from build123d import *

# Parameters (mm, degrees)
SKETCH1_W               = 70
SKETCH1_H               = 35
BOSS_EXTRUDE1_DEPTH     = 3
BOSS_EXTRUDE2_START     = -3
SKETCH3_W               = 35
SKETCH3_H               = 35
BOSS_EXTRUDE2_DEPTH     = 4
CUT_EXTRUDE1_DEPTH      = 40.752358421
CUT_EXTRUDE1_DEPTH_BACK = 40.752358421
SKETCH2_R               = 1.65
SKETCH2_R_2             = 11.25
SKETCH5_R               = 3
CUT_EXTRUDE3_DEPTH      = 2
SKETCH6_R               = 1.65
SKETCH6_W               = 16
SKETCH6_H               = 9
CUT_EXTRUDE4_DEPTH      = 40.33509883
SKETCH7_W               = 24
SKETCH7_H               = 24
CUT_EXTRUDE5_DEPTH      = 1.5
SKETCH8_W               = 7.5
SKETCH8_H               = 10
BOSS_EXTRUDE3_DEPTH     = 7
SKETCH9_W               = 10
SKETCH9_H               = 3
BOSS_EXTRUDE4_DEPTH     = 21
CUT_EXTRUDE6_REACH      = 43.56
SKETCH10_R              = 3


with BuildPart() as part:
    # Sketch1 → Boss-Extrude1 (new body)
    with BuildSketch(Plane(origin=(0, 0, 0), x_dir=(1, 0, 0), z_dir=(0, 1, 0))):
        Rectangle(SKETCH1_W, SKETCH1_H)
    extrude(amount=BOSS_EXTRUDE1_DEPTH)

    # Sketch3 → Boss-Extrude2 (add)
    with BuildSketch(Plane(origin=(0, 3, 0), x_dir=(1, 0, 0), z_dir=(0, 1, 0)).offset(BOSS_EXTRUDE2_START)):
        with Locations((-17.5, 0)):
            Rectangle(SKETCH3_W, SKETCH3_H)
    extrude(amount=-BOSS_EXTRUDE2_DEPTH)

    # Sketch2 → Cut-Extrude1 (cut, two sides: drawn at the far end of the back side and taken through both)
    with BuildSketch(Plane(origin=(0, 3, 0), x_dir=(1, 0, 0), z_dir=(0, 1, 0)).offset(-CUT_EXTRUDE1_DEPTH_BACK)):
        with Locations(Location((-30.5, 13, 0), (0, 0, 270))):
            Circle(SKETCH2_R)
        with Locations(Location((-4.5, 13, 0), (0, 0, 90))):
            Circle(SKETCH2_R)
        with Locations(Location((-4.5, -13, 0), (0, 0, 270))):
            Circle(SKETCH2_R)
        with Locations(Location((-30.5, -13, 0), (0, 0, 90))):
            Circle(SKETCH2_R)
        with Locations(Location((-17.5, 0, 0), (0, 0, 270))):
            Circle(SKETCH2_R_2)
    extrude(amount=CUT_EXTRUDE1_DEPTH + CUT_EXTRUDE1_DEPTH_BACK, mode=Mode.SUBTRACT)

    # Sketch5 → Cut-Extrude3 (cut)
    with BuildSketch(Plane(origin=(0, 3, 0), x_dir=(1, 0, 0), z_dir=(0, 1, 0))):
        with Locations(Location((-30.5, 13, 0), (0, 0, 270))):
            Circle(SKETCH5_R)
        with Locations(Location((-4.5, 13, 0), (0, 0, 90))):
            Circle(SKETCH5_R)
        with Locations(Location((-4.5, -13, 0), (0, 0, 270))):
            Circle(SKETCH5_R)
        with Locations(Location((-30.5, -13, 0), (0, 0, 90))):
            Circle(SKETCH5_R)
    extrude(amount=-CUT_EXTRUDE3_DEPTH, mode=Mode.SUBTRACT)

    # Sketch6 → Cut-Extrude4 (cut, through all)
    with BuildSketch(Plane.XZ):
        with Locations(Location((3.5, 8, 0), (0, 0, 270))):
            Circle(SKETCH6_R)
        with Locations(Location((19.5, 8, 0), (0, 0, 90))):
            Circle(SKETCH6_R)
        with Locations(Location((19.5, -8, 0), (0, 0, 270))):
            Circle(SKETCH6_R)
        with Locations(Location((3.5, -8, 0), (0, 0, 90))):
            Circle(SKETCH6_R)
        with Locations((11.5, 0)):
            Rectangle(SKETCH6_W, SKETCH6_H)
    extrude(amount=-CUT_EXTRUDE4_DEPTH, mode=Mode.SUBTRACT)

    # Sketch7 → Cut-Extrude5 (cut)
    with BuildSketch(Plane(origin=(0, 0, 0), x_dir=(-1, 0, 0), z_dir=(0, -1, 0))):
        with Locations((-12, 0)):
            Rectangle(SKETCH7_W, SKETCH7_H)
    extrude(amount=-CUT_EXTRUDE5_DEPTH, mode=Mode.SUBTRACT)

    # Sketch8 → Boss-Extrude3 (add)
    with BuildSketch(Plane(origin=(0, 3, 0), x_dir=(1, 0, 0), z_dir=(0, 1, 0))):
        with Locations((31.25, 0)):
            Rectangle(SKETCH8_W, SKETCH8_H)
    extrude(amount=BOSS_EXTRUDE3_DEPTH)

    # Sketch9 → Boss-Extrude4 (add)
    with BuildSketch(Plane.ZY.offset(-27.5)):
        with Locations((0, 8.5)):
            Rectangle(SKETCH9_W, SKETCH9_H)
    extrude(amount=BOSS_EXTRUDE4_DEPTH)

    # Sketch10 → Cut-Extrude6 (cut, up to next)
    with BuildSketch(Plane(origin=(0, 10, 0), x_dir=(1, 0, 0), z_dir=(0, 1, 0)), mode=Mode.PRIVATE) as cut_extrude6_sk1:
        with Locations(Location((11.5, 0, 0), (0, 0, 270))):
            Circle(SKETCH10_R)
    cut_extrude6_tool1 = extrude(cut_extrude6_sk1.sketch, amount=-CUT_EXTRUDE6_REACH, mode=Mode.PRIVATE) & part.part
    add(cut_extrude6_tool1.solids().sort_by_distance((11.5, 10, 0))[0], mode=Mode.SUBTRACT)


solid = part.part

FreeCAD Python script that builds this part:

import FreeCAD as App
import Part
import Sketcher

V = App.Vector


def add_polygon(sketch, points):
    """Adds a closed chain of lines whose ends are joined by coincident constraints."""
    first, n = sketch.GeometryCount, len(points)
    for a, b in zip(points, points[1:] + points[:1]):
        sketch.addGeometry(Part.LineSegment(App.Vector(*a, 0), App.Vector(*b, 0)), False)
    for i in range(n):
        sketch.addConstraint(Sketcher.Constraint("Coincident", first + i, 2, first + (i + 1) % n, 1))

doc = App.newDocument("Part")
body = doc.addObject("PartDesign::Body", "Body")

sketch1 = body.newObject("Sketcher::SketchObject", "Sketch")
sketch1.AttachmentSupport = (doc.getObject("XZ_Plane"), [""])
sketch1.MapMode = "FlatFace"
add_polygon(sketch1, [(-35, -18), (-35, 18), (35, 18), (35, -18)])
sketch1.addConstraint([
    Sketcher.Constraint("Vertical", 0),
    Sketcher.Constraint("Horizontal", 1),
    Sketcher.Constraint("Vertical", 2),
    Sketcher.Constraint("Horizontal", 3),
    Sketcher.Constraint("Symmetric", 0, 2, 2, 2, -1, 1),
    Sketcher.Constraint("DistanceX", 1, 1, 1, 2, 70.0),
    Sketcher.Constraint("DistanceY", 0, 1, 0, 2, 35.0),
])
pad1 = body.newObject("PartDesign::Pad", "Pad")
pad1.Profile = sketch1
pad1.Length = 3
pad1.Reversed = True

sketch2 = body.newObject("Sketcher::SketchObject", "Sketch001")
sketch2.AttachmentSupport = (doc.getObject("XZ_Plane"), [""])
sketch2.MapMode = "FlatFace"
add_polygon(sketch2, [(-35, -18), (-35, 18), (0, 18), (0, -18)])
sketch2.addConstraint([
    Sketcher.Constraint("Vertical", 0),
    Sketcher.Constraint("Horizontal", 1),
    Sketcher.Constraint("Vertical", 2),
    Sketcher.Constraint("Horizontal", 3),
    Sketcher.Constraint("Symmetric", 1, 2, 2, 2, -1, 1),
    Sketcher.Constraint("Equal", 3, 0),
    Sketcher.Constraint("DistanceX", 1, 1, 1, 2, 35.0),
])
pad2 = body.newObject("PartDesign::Pad", "Pad001")
pad2.Profile = sketch2
pad2.Length = 4

sketch3 = body.newObject("Sketcher::SketchObject", "Sketch002")
sketch3.AttachmentSupport = (doc.getObject("XZ_Plane"), [""])
sketch3.MapMode = "FlatFace"
sketch3.AttachmentOffset = App.Placement(V(0, 0, -3), App.Rotation())
sketch3.addGeometry([
    Part.Circle(V(-30.5, -13, 0), V(0, 0, 1), 1.6),
    Part.Circle(V(-4.5, -13, 0), V(0, 0, 1), 1.6),
    Part.Circle(V(-4.5, 13, 0), V(0, 0, 1), 1.6),
    Part.Circle(V(-30.5, 13, 0), V(0, 0, 1), 1.6),
    Part.Circle(V(-17.5, 0, 0), V(0, 0, 1), 11.2),
], False)
sketch3.addConstraint([
    Sketcher.Constraint("Equal", 0, 1),
    Sketcher.Constraint("Equal", 1, 2),
    Sketcher.Constraint("Equal", 2, 3),
    Sketcher.Constraint("Symmetric", 1, 3, 2, 3, -1),
    Sketcher.Constraint("Symmetric", 0, 3, 3, 3, -1),
    Sketcher.Constraint("PointOnObject", 4, 3, -1),
    Sketcher.Constraint("Horizontal", 0, 3, 1, 3),
    Sketcher.Constraint("Diameter", 0, 3.3),
    Sketcher.Constraint("Diameter", 4, 22.5),
    Sketcher.Constraint("DistanceY", 0, 3, -1, 1, 13.0),
    Sketcher.Constraint("DistanceX", 0, 3, 1, 3, 26.0),
    Sketcher.Constraint("DistanceX", 0, 3, 4, 3, 13.0),
    Sketcher.Constraint("DistanceX", 0, 3, -1, 1, 30.5),
])
pocket1 = body.newObject("PartDesign::Pocket", "Pocket")
pocket1.Profile = sketch3
pocket1.Type = "ThroughAll"
pocket1.Midplane = True

sketch4 = body.newObject("Sketcher::SketchObject", "Sketch003")
sketch4.AttachmentSupport = (doc.getObject("XZ_Plane"), [""])
sketch4.MapMode = "FlatFace"
sketch4.AttachmentOffset = App.Placement(V(0, 0, -3), App.Rotation())
sketch4.addGeometry([
    Part.Circle(V(-30.5, -13, 0), V(0, 0, 1), 3),
    Part.Circle(V(-4.5, -13, 0), V(0, 0, 1), 3),
    Part.Circle(V(-4.5, 13, 0), V(0, 0, 1), 3),
    Part.Circle(V(-30.5, 13, 0), V(0, 0, 1), 3),
], False)
sketch4.addConstraint([
    Sketcher.Constraint("Equal", 0, 1),
    Sketcher.Constraint("Equal", 1, 2),
    Sketcher.Constraint("Equal", 2, 3),
    Sketcher.Constraint("Symmetric", 1, 3, 2, 3, -1),
    Sketcher.Constraint("Symmetric", 0, 3, 3, 3, -1),
    Sketcher.Constraint("Horizontal", 0, 3, 1, 3),
    Sketcher.Constraint("Diameter", 0, 6.0),
    Sketcher.Constraint("DistanceY", 0, 3, -1, 1, 13.0),
    Sketcher.Constraint("DistanceX", 0, 3, 1, 3, 26.0),
    Sketcher.Constraint("DistanceX", 0, 3, -1, 1, 30.5),
])
pocket2 = body.newObject("PartDesign::Pocket", "Pocket001")
pocket2.Profile = sketch4
pocket2.Length = 2
pocket2.Reversed = True

sketch5 = body.newObject("Sketcher::SketchObject", "Sketch004")
sketch5.AttachmentSupport = (doc.getObject("XZ_Plane"), [""])
sketch5.MapMode = "FlatFace"
sketch5.addGeometry(Part.Circle(V(3.5, 8, 0), V(0, 0, 1), 1.6), False)
sketch5.addGeometry(Part.Circle(V(19.5, 8, 0), V(0, 0, 1), 1.6), False)
sketch5.addGeometry(Part.Circle(V(19.5, -8, 0), V(0, 0, 1), 1.6), False)
sketch5.addGeometry(Part.Circle(V(3.5, -8, 0), V(0, 0, 1), 1.6), False)
add_polygon(sketch5, [(3.5, 4.5), (3.5, -4.5), (19.5, -4.5), (19.5, 4.5)])
sketch5.addConstraint([
    Sketcher.Constraint("Vertical", 4),
    Sketcher.Constraint("Horizontal", 5),
    Sketcher.Constraint("Vertical", 6),
    Sketcher.Constraint("Horizontal", 7),
    Sketcher.Constraint("Equal", 0, 1),
    Sketcher.Constraint("Equal", 1, 2),
    Sketcher.Constraint("Equal", 2, 3),
    Sketcher.Constraint("Symmetric", 1, 3, 2, 3, -1),
    Sketcher.Constraint("Symmetric", 0, 3, 3, 3, -1),
    Sketcher.Constraint("Horizontal", 0, 3, 1, 3),
    Sketcher.Constraint("Vertical", 3, 3, 4, 2),
    Sketcher.Constraint("Vertical", 2, 3, 5, 2),
    Sketcher.Constraint("Diameter", 0, 3.3),
    Sketcher.Constraint("DistanceX", 5, 1, 5, 2, 16.0),
    Sketcher.Constraint("DistanceY", 4, 2, 4, 1, 9.0),
    Sketcher.Constraint("DistanceY", -1, 1, 0, 3, 8.0),
    Sketcher.Constraint("DistanceX", -1, 1, 0, 3, 3.5),
    Sketcher.Constraint("DistanceY", 4, 2, -1, 1, 4.5),
])
pocket3 = body.newObject("PartDesign::Pocket", "Pocket002")
pocket3.Profile = sketch5
pocket3.Type = "ThroughAll"

sketch6 = body.newObject("Sketcher::SketchObject", "Sketch005")
sketch6.AttachmentSupport = (doc.getObject("XZ_Plane"), [""])
sketch6.MapMode = "FlatFace"
add_polygon(sketch6, [(24, -12), (24, 12), (0, 12), (0, -12)])
sketch6.addConstraint([
    Sketcher.Constraint("Vertical", 0),
    Sketcher.Constraint("Horizontal", 1),
    Sketcher.Constraint("Vertical", 2),
    Sketcher.Constraint("Horizontal", 3),
    Sketcher.Constraint("Symmetric", 1, 2, 2, 2, -1, 1),
    Sketcher.Constraint("Equal", 3, 0),
    Sketcher.Constraint("DistanceX", 1, 2, 1, 1, 24.0),
])
pocket4 = body.newObject("PartDesign::Pocket", "Pocket003")
pocket4.Profile = sketch6
pocket4.Length = 1.5

sketch7 = body.newObject("Sketcher::SketchObject", "Sketch006")
sketch7.AttachmentSupport = (doc.getObject("XZ_Plane"), [""])
sketch7.MapMode = "FlatFace"
sketch7.AttachmentOffset = App.Placement(V(0, 0, -3), App.Rotation())
add_polygon(sketch7, [(28, -5), (28, 5), (35, 5), (35, -5)])
sketch7.addConstraint([
    Sketcher.Constraint("Vertical", 0),
    Sketcher.Constraint("Horizontal", 1),
    Sketcher.Constraint("Vertical", 2),
    Sketcher.Constraint("Horizontal", 3),
    Sketcher.Constraint("DistanceY", 0, 1, 0, 2, 10.0),
    Sketcher.Constraint("DistanceX", 1, 1, 1, 2, 7.5),
    Sketcher.Constraint("DistanceY", -1, 1, 0, 2, 5.0),
    Sketcher.Constraint("DistanceX", -1, 1, 1, 2, 35.0),
])
pad3 = body.newObject("PartDesign::Pad", "Pad002")
pad3.Profile = sketch7
pad3.Length = 7
pad3.Reversed = True

sketch8 = body.newObject("Sketcher::SketchObject", "Sketch007")
sketch8.AttachmentSupport = (doc.getObject("YZ_Plane"), [""])
sketch8.MapMode = "FlatFace"
sketch8.AttachmentOffset = App.Placement(V(0, 0, 27.5), App.Rotation())
add_polygon(sketch8, [(10, -5), (7, -5), (7, 5), (10, 5)])
sketch8.addConstraint([
    Sketcher.Constraint("Horizontal", 0),
    Sketcher.Constraint("Vertical", 1),
    Sketcher.Constraint("Horizontal", 2),
    Sketcher.Constraint("Vertical", 3),
    Sketcher.Constraint("DistanceX", 0, 2, 0, 1, 3.0),
    Sketcher.Constraint("DistanceY", 1, 1, 1, 2, 10.0),
    Sketcher.Constraint("DistanceX", -1, 1, 0, 2, 7.0),
    Sketcher.Constraint("DistanceY", 0, 2, -1, 1, 5.0),
])
pad4 = body.newObject("PartDesign::Pad", "Pad003")
pad4.Profile = sketch8
pad4.Length = 21
pad4.Reversed = True

sketch9 = body.newObject("Sketcher::SketchObject", "Sketch008")
sketch9.AttachmentSupport = (doc.getObject("XZ_Plane"), [""])
sketch9.MapMode = "FlatFace"
sketch9.AttachmentOffset = App.Placement(V(0, 0, -10), App.Rotation())
sketch9.addGeometry(Part.Circle(V(11.5, 0, 0), V(0, 0, 1), 3), False)
sketch9.addConstraint([
    Sketcher.Constraint("PointOnObject", 0, 3, -1),
    Sketcher.Constraint("Diameter", 0, 6.0),
    Sketcher.Constraint("DistanceX", -1, 1, 0, 3, 11.5),
])
pocket5 = body.newObject("PartDesign::Pocket", "Pocket004")
pocket5.Profile = sketch9
pocket5.Type = "UpToFirst"
pocket5.Reversed = True

doc.recompute()
